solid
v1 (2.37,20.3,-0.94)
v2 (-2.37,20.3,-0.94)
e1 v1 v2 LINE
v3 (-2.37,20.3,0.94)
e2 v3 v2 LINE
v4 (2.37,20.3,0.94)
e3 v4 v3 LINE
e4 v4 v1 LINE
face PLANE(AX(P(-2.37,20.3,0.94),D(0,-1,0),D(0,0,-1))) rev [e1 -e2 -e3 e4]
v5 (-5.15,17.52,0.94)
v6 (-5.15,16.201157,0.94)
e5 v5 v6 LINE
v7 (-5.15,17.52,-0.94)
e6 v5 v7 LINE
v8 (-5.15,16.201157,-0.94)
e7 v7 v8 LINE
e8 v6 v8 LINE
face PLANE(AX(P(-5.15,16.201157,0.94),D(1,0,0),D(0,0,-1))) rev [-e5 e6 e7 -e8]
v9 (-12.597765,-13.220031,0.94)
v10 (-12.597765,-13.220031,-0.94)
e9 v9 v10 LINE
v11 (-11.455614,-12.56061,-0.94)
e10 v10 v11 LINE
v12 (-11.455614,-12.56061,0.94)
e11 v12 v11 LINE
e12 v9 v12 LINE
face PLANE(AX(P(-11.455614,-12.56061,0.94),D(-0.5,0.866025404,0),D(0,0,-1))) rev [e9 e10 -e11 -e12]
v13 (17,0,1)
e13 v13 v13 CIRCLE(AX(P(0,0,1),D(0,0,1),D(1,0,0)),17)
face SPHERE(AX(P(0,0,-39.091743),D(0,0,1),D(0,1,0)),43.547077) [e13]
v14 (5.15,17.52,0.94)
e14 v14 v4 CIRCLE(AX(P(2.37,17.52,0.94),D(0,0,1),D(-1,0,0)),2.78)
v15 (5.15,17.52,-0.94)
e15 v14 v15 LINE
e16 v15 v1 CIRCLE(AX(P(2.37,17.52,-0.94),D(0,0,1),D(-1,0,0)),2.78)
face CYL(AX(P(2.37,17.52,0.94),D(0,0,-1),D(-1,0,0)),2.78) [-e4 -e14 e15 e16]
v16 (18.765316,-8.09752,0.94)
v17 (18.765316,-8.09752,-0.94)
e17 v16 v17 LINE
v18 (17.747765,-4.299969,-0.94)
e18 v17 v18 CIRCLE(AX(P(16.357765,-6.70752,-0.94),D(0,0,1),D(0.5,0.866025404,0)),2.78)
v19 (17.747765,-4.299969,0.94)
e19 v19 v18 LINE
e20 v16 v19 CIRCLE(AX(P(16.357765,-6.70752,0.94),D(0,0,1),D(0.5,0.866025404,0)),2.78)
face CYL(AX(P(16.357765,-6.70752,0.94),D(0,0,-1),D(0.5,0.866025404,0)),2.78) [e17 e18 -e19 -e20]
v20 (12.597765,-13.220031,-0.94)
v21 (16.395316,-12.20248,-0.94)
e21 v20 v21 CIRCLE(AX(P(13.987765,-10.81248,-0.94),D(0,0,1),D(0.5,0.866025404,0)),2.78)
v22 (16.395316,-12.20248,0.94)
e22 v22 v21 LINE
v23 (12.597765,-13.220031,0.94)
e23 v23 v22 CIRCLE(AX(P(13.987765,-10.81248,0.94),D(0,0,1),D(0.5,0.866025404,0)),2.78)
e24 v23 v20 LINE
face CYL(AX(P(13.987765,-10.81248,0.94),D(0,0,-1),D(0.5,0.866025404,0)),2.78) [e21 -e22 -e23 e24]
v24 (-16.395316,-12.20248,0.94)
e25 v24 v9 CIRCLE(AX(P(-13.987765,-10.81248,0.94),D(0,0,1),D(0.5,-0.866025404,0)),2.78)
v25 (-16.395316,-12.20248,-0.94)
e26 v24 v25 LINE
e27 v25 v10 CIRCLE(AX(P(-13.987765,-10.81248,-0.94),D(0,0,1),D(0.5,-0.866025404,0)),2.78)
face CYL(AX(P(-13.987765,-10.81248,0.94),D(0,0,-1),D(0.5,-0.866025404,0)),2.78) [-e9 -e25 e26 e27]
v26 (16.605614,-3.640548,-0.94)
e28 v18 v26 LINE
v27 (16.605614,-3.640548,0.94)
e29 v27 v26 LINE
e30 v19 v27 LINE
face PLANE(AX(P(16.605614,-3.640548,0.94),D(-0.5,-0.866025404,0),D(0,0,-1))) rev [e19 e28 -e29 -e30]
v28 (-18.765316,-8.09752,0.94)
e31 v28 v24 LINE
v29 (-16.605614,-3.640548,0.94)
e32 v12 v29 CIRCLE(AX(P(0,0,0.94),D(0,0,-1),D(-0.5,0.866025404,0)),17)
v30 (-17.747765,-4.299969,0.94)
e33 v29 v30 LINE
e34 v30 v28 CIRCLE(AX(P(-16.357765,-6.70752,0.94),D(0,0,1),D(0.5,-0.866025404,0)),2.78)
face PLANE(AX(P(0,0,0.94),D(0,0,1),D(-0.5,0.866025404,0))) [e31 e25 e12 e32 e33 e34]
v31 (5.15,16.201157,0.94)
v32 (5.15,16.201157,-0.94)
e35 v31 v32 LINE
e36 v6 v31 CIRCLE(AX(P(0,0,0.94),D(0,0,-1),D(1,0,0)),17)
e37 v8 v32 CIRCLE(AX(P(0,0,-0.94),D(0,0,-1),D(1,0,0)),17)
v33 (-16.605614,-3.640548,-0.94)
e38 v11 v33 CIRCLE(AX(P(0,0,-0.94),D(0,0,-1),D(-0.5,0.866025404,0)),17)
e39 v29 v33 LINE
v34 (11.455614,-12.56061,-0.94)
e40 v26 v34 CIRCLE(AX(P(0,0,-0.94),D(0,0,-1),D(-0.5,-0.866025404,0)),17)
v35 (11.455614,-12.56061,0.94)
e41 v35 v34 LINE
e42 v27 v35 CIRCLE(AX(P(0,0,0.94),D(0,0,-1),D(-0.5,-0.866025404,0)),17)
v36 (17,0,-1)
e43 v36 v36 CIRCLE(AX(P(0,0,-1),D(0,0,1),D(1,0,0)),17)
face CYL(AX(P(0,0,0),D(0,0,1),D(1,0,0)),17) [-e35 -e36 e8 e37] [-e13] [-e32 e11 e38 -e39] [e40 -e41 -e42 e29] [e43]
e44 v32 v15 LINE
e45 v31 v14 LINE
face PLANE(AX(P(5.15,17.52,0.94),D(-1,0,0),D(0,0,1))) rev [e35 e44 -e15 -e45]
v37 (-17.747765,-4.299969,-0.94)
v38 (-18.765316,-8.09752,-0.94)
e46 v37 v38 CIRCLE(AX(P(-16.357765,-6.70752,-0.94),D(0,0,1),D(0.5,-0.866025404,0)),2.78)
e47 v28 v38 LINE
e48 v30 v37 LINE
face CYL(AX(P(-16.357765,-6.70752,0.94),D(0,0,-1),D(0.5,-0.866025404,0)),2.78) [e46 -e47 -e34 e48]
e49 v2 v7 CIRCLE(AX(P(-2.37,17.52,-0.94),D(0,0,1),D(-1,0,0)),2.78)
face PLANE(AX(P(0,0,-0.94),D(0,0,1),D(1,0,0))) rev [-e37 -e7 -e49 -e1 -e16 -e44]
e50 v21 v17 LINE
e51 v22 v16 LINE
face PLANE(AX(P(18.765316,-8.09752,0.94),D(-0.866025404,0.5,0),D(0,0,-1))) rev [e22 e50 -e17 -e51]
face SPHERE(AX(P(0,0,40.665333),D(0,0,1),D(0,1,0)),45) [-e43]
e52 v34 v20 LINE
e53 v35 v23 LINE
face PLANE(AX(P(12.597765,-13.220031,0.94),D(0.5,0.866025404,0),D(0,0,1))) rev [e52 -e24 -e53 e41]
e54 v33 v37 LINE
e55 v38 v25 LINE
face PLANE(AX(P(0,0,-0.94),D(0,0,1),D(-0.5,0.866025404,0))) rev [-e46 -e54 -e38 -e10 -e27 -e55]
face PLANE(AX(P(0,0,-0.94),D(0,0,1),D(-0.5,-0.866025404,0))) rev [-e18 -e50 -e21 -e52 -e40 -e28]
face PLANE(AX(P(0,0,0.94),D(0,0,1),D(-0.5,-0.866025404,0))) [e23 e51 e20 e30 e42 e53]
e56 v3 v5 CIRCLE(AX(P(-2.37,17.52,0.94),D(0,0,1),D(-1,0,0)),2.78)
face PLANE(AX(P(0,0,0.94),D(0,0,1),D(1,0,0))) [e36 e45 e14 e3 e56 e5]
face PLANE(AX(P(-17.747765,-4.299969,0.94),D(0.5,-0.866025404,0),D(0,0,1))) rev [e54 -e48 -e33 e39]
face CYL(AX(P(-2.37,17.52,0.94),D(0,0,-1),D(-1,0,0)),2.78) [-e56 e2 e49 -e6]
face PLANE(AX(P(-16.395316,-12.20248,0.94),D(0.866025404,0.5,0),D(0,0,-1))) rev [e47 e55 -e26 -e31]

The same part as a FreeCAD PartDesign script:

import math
import FreeCAD as App
import Part
import Sketcher

doc = App.newDocument("Part")
body = doc.addObject("PartDesign::Body", "Body")

# Sketch on YZ plane
sketch1 = body.newObject("Sketcher::SketchObject", "Sketch")
sketch1.AttachmentSupport = (doc.getObject("YZ_Plane"), [""])
sketch1.MapMode = "FlatFace"
sketch1.addGeometry([
    Part.LineSegment(App.Vector(17, -1, 0), App.Vector(17, 1, 0)),
    Part.ArcOfCircle(Part.Circle(App.Vector(0, -39.1, 0), App.Vector(0, 0, 1), 43.5), math.radians(67), math.radians(90)),
    Part.LineSegment(App.Vector(0, 4.5, 0), App.Vector(0, -4.3, 0)),
    Part.ArcOfCircle(Part.Circle(App.Vector(0, 40.7, 0), App.Vector(0, 0, 1), 45), math.radians(-90), math.radians(-68)),
], False)
sketch1.addConstraint([
    Sketcher.Constraint("Coincident", 0, 2, 1, 1),
    Sketcher.Constraint("Coincident", 1, 2, 2, 1),
    Sketcher.Constraint("Coincident", 2, 2, 3, 1),
    Sketcher.Constraint("Coincident", 3, 2, 0, 1),
    Sketcher.Constraint("Vertical", 0),
    Sketcher.Constraint("Vertical", 2),
    Sketcher.Constraint("PointOnObject", 1, 3, -2),
    Sketcher.Constraint("PointOnObject", 3, 3, -2),
    Sketcher.Constraint("PointOnObject", 1, 2, -2),
    Sketcher.Constraint("Radius", 3, 45.0),
    Sketcher.Constraint("DistanceY", 0, 1, 0, 2, 2.0),
    Sketcher.Constraint("DistanceX", -1, 1, 0, 2, 17.0),
    Sketcher.Constraint("DistanceY", -1, 1, 0, 2, 1.0),
    Sketcher.Constraint("DistanceY", 2, 2, 2, 1, 8.79),
])
revolution = body.newObject("PartDesign::Revolution", "Revolution")
revolution.Profile = sketch1
revolution.ReferenceAxis = (sketch1, ["V_Axis"])
revolution.Angle = 360

# Sketch on XY plane
sketch2 = body.newObject("Sketcher::SketchObject", "Sketch001")
sketch2.AttachmentSupport = (doc.getObject("XY_Plane"), [""])
sketch2.MapMode = "FlatFace"
sketch2.addGeometry([
    Part.LineSegment(App.Vector(-5.2, 17.5, 0), App.Vector(-5.2, 16.2, 0)),  # 0
    Part.ArcOfCircle(Part.Circle(App.Vector(0, 0, 0), App.Vector(0, 0, 1), 17), math.radians(72), math.radians(108)),  # 1
    Part.LineSegment(App.Vector(5.2, 16.2, 0), App.Vector(5.2, 17.5, 0)),  # 2
    Part.ArcOfCircle(Part.Circle(App.Vector(2.4, 17.5, 0), App.Vector(0, 0, 1), 2.8), math.radians(0), math.radians(90)),  # 3
    Part.LineSegment(App.Vector(2.4, 20.3, 0), App.Vector(-2.4, 20.3, 0)),  # 4
    Part.ArcOfCircle(Part.Circle(App.Vector(-2.4, 17.5, 0), App.Vector(0, 0, 1), 2.8), math.radians(90), math.radians(180)),  # 5
], False)
sketch2.addConstraint([
    Sketcher.Constraint("Coincident", 0, 2, 1, 2),
    Sketcher.Constraint("Coincident", 1, 1, 2, 1),
    Sketcher.Constraint("Tangent", 2, 2, 3, 1),
    Sketcher.Constraint("Tangent", 3, 2, 4, 1),
    Sketcher.Constraint("Tangent", 4, 2, 5, 1),
    Sketcher.Constraint("Tangent", 5, 2, 0, 1),
    Sketcher.Constraint("Vertical", 0),
    Sketcher.Constraint("Vertical", 2),
    Sketcher.Constraint("Horizontal", 4),
    Sketcher.Constraint("Coincident", 1, 3, -1, 1),
    Sketcher.Constraint("Equal", 3, 5),
    Sketcher.Constraint("Horizontal", 0, 2, 1, 1),
    Sketcher.Constraint("Radius", 1, 17.0),
    Sketcher.Constraint("Radius", 3, 2.78),
    Sketcher.Constraint("DistanceX", 4, 2, 4, 1, 4.74),
    Sketcher.Constraint("DistanceY", -1, 1, 3, 2, 20.3),
])
pad1 = body.newObject("PartDesign::Pad", "Pad")
pad1.Profile = sketch2
pad1.Length = 1.88
pad1.Midplane = True
doc.recompute()

polarpattern = body.newObject("PartDesign::PolarPattern", "PolarPattern")
polarpattern.Originals = [pad1]
polarpattern.Axis = (doc.getObject("Z_Axis"), [""])
polarpattern.Angle = 360
polarpattern.Occurrences = 3
body.Tip = polarpattern

doc.recompute()
